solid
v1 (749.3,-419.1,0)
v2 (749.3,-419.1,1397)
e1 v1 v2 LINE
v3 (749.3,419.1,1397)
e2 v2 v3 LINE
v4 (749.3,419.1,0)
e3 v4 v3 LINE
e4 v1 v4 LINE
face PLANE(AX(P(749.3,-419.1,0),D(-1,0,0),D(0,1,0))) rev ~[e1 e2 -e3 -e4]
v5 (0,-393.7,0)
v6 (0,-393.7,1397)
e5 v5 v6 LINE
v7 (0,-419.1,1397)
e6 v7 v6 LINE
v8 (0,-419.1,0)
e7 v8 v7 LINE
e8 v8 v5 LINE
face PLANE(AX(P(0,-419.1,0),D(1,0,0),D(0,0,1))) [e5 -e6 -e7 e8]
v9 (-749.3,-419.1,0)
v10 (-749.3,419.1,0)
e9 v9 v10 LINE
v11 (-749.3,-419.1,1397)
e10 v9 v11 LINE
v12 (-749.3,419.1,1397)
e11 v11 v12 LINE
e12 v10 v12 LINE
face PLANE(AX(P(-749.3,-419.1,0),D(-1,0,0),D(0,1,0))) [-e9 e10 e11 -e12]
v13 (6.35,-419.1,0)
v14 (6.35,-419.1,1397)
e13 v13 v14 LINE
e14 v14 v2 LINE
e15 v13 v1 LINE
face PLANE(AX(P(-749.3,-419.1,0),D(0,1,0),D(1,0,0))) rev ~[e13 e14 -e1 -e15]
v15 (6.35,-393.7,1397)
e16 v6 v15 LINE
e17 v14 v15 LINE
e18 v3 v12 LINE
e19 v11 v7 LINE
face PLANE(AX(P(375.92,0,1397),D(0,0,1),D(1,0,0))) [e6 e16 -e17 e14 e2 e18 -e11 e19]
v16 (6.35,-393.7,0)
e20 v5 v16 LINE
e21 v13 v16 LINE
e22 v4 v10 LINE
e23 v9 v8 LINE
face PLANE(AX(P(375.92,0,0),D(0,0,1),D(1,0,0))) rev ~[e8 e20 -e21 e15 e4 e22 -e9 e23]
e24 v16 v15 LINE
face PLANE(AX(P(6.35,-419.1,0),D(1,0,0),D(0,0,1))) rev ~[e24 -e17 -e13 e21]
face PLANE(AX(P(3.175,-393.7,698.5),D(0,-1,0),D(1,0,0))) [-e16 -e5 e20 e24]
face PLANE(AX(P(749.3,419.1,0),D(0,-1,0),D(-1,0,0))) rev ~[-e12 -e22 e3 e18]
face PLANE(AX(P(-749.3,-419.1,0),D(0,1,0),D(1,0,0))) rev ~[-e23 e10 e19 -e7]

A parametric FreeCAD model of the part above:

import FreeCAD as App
import Part
import Sketcher
Q = App.Units.Quantity

doc = App.newDocument("Part")
body = doc.addObject("PartDesign::Body", "Body")

# Sketch on XY plane
sketch1 = body.newObject("Sketcher::SketchObject", "Sketch")
sketch1.AttachmentSupport = (doc.getObject("XY_Plane"), [""])
sketch1.MapMode = "FlatFace"
sketch1.addGeometry([
    Part.LineSegment(App.Vector(749, -419, 0), App.Vector(749, 419, 0)),
    Part.LineSegment(App.Vector(749, 419, 0), App.Vector(-749, 419, 0)),
    Part.LineSegment(App.Vector(-749, 419, 0), App.Vector(-749, -419, 0)),
    Part.LineSegment(App.Vector(-749, -419, 0), App.Vector(749, -419, 0)),
], False)
sketch1.addConstraint([
    Sketcher.Constraint("Coincident", 0, 2, 1, 1),
    Sketcher.Constraint("Coincident", 1, 2, 2, 1),
    Sketcher.Constraint("Coincident", 2, 2, 3, 1),
    Sketcher.Constraint("Coincident", 3, 2, 0, 1),
    Sketcher.Constraint("Vertical", 0),
    Sketcher.Constraint("Horizontal", 1),
    Sketcher.Constraint("Vertical", 2),
    Sketcher.Constraint("Horizontal", 3),
    Sketcher.Constraint("Symmetric", 0, 2, 2, 2, -1, 1),
    Sketcher.Constraint("DistanceX", 1, 2, 1, 1, Q("59 in")),
    Sketcher.Constraint("DistanceY", 0, 1, 0, 2, Q("33 in")),
])
pad1 = body.newObject("PartDesign::Pad", "Pad")
pad1.Profile = sketch1
pad1.Length = Q("55 in")

# Sketch on XZ plane
sketch2 = body.newObject("Sketcher::SketchObject", "Sketch001")
sketch2.AttachmentSupport = (doc.getObject("XZ_Plane"), [""])
sketch2.MapMode = "FlatFace"
sketch2.AttachmentOffset = App.Placement(App.Vector(0, 0, 16.5 * 25.4), App.Rotation())
sketch2.addGeometry([
    Part.LineSegment(App.Vector(0, 1397, 0), App.Vector(0, 0, 0)),
    Part.LineSegment(App.Vector(0, 0, 0), App.Vector(6, 0, 0)),
    Part.LineSegment(App.Vector(6, 0, 0), App.Vector(6, 1397, 0)),
    Part.LineSegment(App.Vector(6, 1397, 0), App.Vector(0, 1397, 0)),
], False)
sketch2.addConstraint([
    Sketcher.Constraint("Coincident", 0, 2, 1, 1),
    Sketcher.Constraint("Coincident", 1, 2, 2, 1),
    Sketcher.Constraint("Coincident", 2, 2, 3, 1),
    Sketcher.Constraint("Coincident", 3, 2, 0, 1),
    Sketcher.Constraint("Vertical", 0),
    Sketcher.Constraint("Horizontal", 1),
    Sketcher.Constraint("Vertical", 2),
    Sketcher.Constraint("Horizontal", 3),
    Sketcher.Constraint("Coincident", 0, 2, -1, 1),
    Sketcher.Constraint("DistanceY", 0, 2, 0, 1, Q("55 in")),
    Sketcher.Constraint("DistanceX", 1, 1, 1, 2, Q("0.25 in")),
])
pocket1 = body.newObject("PartDesign::Pocket", "Pocket")
pocket1.Profile = sketch2
pocket1.Length = Q("1 in")

doc.recompute()
